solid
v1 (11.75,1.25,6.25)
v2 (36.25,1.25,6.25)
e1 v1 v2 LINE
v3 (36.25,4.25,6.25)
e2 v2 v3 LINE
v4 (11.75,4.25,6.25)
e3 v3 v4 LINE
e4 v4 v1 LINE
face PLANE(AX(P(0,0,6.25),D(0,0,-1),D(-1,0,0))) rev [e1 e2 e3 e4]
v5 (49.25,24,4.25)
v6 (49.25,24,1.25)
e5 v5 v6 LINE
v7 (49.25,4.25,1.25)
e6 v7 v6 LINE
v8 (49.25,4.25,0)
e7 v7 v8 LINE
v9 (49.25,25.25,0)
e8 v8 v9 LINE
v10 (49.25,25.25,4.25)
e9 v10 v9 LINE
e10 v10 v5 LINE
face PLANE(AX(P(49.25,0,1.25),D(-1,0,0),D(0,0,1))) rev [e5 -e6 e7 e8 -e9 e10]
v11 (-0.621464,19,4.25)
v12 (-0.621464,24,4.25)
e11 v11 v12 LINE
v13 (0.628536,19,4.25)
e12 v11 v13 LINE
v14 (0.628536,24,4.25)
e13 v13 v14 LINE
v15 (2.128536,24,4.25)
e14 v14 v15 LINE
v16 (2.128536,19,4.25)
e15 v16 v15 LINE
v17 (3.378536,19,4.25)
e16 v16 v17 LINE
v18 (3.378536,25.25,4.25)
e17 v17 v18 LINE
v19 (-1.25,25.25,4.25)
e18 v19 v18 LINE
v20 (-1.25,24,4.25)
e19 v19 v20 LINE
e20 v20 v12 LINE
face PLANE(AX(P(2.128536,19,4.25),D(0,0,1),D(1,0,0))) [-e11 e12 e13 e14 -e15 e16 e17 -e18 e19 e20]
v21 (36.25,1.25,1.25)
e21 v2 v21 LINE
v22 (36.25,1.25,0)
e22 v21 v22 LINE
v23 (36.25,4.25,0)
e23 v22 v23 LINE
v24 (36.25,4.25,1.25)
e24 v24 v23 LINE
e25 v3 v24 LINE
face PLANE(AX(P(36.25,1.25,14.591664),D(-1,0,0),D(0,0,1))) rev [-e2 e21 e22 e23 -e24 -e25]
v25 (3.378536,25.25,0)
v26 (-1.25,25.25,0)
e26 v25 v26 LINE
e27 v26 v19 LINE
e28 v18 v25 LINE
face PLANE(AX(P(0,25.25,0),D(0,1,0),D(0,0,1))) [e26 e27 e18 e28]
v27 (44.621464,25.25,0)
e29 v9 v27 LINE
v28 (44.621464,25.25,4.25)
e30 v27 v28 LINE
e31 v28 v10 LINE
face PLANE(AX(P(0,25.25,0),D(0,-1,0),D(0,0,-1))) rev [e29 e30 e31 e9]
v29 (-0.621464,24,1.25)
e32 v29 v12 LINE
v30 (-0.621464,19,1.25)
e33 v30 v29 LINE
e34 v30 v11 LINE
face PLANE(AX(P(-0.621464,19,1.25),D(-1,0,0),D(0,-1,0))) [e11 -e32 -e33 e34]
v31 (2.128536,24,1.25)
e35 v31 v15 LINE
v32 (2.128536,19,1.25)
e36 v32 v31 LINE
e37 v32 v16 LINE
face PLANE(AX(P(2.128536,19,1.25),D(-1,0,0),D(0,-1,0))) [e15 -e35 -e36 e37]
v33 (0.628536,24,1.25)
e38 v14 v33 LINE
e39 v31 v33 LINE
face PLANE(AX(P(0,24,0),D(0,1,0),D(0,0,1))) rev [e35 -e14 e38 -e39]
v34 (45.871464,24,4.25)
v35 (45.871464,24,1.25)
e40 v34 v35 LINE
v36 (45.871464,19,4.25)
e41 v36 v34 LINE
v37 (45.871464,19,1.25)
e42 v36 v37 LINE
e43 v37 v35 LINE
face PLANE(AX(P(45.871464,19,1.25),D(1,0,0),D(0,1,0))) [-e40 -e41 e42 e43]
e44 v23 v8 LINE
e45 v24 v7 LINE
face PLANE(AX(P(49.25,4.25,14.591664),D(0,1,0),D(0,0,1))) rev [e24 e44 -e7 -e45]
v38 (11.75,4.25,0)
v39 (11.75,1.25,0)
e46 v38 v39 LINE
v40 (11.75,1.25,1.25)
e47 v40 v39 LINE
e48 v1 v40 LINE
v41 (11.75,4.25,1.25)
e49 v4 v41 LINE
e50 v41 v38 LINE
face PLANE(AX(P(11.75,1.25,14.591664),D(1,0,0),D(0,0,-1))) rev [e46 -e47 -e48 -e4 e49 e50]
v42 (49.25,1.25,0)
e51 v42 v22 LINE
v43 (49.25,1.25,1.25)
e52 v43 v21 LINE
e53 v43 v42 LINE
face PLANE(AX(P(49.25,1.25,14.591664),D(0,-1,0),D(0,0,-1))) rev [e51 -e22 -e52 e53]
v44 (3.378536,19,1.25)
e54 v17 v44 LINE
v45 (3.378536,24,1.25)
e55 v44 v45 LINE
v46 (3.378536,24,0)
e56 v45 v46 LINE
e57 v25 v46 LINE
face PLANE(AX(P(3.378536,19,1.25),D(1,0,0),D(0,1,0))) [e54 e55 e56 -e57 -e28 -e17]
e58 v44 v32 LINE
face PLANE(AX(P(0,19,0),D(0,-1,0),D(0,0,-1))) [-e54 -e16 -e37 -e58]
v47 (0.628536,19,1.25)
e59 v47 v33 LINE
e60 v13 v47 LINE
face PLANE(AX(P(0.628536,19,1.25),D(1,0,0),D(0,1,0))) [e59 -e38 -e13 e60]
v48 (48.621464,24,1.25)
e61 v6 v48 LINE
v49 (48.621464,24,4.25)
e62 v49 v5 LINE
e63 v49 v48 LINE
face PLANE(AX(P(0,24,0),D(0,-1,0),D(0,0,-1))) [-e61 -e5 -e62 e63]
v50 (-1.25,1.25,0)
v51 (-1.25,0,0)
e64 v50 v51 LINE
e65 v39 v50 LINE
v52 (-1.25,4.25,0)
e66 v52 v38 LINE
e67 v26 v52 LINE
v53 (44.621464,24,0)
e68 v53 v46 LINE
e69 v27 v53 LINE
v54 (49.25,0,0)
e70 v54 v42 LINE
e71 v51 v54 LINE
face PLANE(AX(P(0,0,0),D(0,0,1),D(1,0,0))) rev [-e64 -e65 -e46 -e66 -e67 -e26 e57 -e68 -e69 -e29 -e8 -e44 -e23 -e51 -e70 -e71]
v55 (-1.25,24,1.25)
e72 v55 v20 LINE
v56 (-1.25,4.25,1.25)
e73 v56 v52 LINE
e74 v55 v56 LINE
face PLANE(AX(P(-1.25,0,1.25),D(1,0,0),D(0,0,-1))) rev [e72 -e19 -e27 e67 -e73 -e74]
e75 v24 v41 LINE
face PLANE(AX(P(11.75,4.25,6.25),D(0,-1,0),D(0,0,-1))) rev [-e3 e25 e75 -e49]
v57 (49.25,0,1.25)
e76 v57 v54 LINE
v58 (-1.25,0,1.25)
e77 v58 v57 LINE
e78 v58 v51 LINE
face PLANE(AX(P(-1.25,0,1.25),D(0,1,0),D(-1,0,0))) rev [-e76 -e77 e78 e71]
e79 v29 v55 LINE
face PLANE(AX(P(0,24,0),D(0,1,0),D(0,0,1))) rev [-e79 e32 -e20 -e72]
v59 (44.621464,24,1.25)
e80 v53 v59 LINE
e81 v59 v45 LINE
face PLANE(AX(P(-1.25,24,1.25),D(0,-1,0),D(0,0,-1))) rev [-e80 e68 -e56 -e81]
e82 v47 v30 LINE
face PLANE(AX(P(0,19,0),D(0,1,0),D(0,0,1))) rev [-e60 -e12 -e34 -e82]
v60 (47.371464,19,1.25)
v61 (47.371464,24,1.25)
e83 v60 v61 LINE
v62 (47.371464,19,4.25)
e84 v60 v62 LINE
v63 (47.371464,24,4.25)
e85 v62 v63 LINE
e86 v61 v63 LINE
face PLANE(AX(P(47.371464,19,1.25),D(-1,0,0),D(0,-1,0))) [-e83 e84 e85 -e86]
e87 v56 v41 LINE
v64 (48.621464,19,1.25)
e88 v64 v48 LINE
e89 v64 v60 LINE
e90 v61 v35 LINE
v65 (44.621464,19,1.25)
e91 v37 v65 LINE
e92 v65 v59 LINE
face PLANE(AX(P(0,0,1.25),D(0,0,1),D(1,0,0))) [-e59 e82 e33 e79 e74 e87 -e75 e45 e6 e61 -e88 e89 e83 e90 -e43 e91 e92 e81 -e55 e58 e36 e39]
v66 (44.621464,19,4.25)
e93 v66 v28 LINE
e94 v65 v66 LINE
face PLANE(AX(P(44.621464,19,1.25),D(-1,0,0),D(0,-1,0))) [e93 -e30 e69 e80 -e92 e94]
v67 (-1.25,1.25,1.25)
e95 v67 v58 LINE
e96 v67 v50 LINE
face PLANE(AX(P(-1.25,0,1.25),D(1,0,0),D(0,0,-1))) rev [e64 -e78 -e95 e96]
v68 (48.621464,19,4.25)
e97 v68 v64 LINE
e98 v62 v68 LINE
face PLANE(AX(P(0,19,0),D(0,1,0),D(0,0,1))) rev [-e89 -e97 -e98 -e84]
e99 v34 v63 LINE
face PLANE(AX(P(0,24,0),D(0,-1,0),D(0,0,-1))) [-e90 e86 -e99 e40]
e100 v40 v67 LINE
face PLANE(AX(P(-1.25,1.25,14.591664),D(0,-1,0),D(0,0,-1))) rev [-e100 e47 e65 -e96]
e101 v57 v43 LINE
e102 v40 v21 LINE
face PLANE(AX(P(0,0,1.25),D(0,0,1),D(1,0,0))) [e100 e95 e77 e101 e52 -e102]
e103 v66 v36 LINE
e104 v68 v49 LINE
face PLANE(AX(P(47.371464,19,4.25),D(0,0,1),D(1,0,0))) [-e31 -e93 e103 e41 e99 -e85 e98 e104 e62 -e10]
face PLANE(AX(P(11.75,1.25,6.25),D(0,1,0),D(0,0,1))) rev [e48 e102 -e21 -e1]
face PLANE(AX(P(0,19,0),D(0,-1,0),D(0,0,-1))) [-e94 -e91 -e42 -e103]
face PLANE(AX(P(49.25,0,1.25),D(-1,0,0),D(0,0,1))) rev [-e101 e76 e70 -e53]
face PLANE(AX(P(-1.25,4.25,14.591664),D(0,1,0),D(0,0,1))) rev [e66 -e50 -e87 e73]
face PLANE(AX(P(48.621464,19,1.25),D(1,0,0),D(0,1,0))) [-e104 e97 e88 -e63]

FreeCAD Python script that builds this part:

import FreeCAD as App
import Part
import Sketcher
from FreeCAD import Vector


def add_polygon(sketch, points):
    """Adds a closed chain of lines whose ends are joined by coincident constraints."""
    first, n = sketch.GeometryCount, len(points)
    for a, b in zip(points, points[1:] + points[:1]):
        sketch.addGeometry(Part.LineSegment(App.Vector(*a, 0), App.Vector(*b, 0)), False)
    for i in range(n):
        sketch.addConstraint(Sketcher.Constraint("Coincident", first + i, 2, first + (i + 1) % n, 1))

doc = App.newDocument("Part")
body = doc.addObject("PartDesign::Body", "Body")

# Sketch on XY plane
sketch1 = body.newObject("Sketcher::SketchObject", "Sketch")
sketch1.AttachmentSupport = (doc.getObject("XY_Plane"), [""])
sketch1.MapMode = "FlatFace"
add_polygon(sketch1, [(-1.25, 24), (-1.25, 0), (49.25, 0), (49.25, 24)])  # lines 0-3
sketch1.addConstraint([
    Sketcher.Constraint("Vertical", 0),
    Sketcher.Constraint("Horizontal", 1),
    Sketcher.Constraint("Vertical", 2),
    Sketcher.Constraint("Horizontal", 3),
    Sketcher.Constraint("PointOnObject", 0, 2, -1),
    Sketcher.Constraint("DistanceY", 0, 2, 0, 1, 24.0),
    Sketcher.Constraint("DistanceX", 1, 1, 1, 2, 50.5),
    Sketcher.Constraint("DistanceX", 0, 2, -1, 1, 1.25),
])
pad1 = body.newObject("PartDesign::Pad", "Pad")
pad1.Profile = sketch1
pad1.Length = 1.25

# Sketch on XZ plane
sketch2 = body.newObject("Sketcher::SketchObject", "Sketch001")
sketch2.AttachmentSupport = (doc.getObject("XZ_Plane"), [""])
sketch2.MapMode = "FlatFace"
sketch2.AttachmentOffset = App.Placement(Vector(0, 0, -24), App.Rotation())
add_polygon(sketch2, [(47.371464, 1.25), (47.371464, 4.25), (48.621464, 4.25), (48.621464, 1.25)])  # lines 0-3
add_polygon(sketch2, [(44.621464, 1.25), (44.621464, 4.25), (45.871464, 4.25), (45.871464, 1.25)])  # lines 4-7
add_polygon(sketch2, [(2.128536, 1.25), (2.128536, 4.25), (3.378536, 4.25), (3.378536, 1.25)])  # lines 8-11
add_polygon(sketch2, [(-0.621464, 1.25), (-0.621464, 4.25), (0.628536, 4.25), (0.628536, 1.25)])  # lines 12-15
sketch2.addConstraint([
    Sketcher.Constraint("Vertical", 0),
    Sketcher.Constraint("Horizontal", 1),
    Sketcher.Constraint("Vertical", 2),
    Sketcher.Constraint("Horizontal", 3),
    Sketcher.Constraint("Vertical", 4),
    Sketcher.Constraint("Horizontal", 5),
    Sketcher.Constraint("Vertical", 6),
    Sketcher.Constraint("Horizontal", 7),
    Sketcher.Constraint("Vertical", 8),
    Sketcher.Constraint("Horizontal", 9),
    Sketcher.Constraint("Vertical", 10),
    Sketcher.Constraint("Horizontal", 11),
    Sketcher.Constraint("Vertical", 12),
    Sketcher.Constraint("Horizontal", 13),
    Sketcher.Constraint("Vertical", 14),
    Sketcher.Constraint("Horizontal", 15),
    Sketcher.Constraint("Horizontal", 1, 2, 4, 2),
    Sketcher.Constraint("Horizontal", 3, 2, 6, 2),
    Sketcher.Constraint("Horizontal", 5, 2, 8, 2),
    Sketcher.Constraint("Horizontal", 7, 2, 10, 2),
    Sketcher.Constraint("Horizontal", 9, 2, 12, 2),
    Sketcher.Constraint("Horizontal", 11, 2, 14, 2),
    Sketcher.Constraint("Equal", 3, 5),
    Sketcher.Constraint("Equal", 7, 9),
    Sketcher.Constraint("Equal", 11, 13),
    Sketcher.Constraint("DistanceY", 0, 1, 0, 2, 3.0),
    Sketcher.Constraint("DistanceX", 4, 2, 1, 2, 4.0),
    Sketcher.Constraint("DistanceX", 12, 2, 9, 2, 4.0),
    Sketcher.Constraint("DistanceX", 1, 1, 1, 2, 1.25),
    Sketcher.Constraint("DistanceY", -1, 1, 0, 2, 4.25),
    Sketcher.Constraint("DistanceX", -1, 1, 0, 2, 47.371464),
    Sketcher.Constraint("DistanceX", -1, 1, 8, 2, 2.128536),
])
pad2 = body.newObject("PartDesign::Pad", "Pad001")
pad2.Profile = sketch2
pad2.Length = 5

# Sketch on XY plane
sketch3 = body.newObject("Sketcher::SketchObject", "Sketch002")
sketch3.AttachmentSupport = (doc.getObject("XY_Plane"), [""])
sketch3.MapMode = "FlatFace"
add_polygon(sketch3, [(49.25, 4.25), (49.25, 1.25), (36.25, 1.25), (36.25, 4.25)])  # lines 0-3
add_polygon(sketch3, [(11.75, 4.25), (11.75, 1.25), (-1.25, 1.25), (-1.25, 4.25)])  # lines 4-7
sketch3.addConstraint([
    Sketcher.Constraint("Vertical", 0),
    Sketcher.Constraint("Horizontal", 1),
    Sketcher.Constraint("Vertical", 2),
    Sketcher.Constraint("Horizontal", 3),
    Sketcher.Constraint("Vertical", 4),
    Sketcher.Constraint("Horizontal", 5),
    Sketcher.Constraint("Vertical", 6),
    Sketcher.Constraint("Horizontal", 7),
    Sketcher.Constraint("Horizontal", 1, 2, 4, 2),
    Sketcher.Constraint("Horizontal", 3, 2, 6, 2),
    Sketcher.Constraint("Equal", 3, 5),
    Sketcher.Constraint("DistanceX", 1, 2, 1, 1, 13.0),
    Sketcher.Constraint("DistanceY", 0, 2, 0, 1, 3.0),
    Sketcher.Constraint("DistanceX", 4, 2, 1, 2, 24.5),
    Sketcher.Constraint("DistanceX", -1, 1, 0, 2, 49.25),
    Sketcher.Constraint("DistanceY", -1, 1, 0, 2, 1.25),
])
pocket1 = body.newObject("PartDesign::Pocket", "Pocket")
pocket1.Profile = sketch3
pocket1.Length = 1.25
pocket1.Reversed = True

# Sketch on XZ plane
sketch4 = body.newObject("Sketcher::SketchObject", "Sketch003")
sketch4.AttachmentSupport = (doc.getObject("XZ_Plane"), [""])
sketch4.MapMode = "FlatFace"
sketch4.AttachmentOffset = App.Placement(Vector(0, 0, -24), App.Rotation())
add_polygon(sketch4, [(-1.25, 0), (-1.25, 4.25), (3.378536, 4.25), (3.378536, 0)])  # lines 0-3
add_polygon(sketch4, [(44.621464, 0), (44.621464, 4.25), (49.25, 4.25), (49.25, 0)])  # lines 4-7
sketch4.addConstraint([
    Sketcher.Constraint("Vertical", 0),
    Sketcher.Constraint("Horizontal", 1),
    Sketcher.Constraint("Vertical", 2),
    Sketcher.Constraint("Horizontal", 3),
    Sketcher.Constraint("Vertical", 4),
    Sketcher.Constraint("Horizontal", 5),
    Sketcher.Constraint("Vertical", 6),
    Sketcher.Constraint("Horizontal", 7),
    Sketcher.Constraint("PointOnObject", 2, 2, -1),
    Sketcher.Constraint("PointOnObject", 6, 2, -1),
    Sketcher.Constraint("Horizontal", 1, 2, 4, 2),
    Sketcher.Constraint("Equal", 3, 5),
    Sketcher.Constraint("DistanceY", 0, 1, 0, 2, 4.25),
    Sketcher.Constraint("DistanceX", 0, 2, 5, 2, 50.5),
    Sketcher.Constraint("DistanceX", 0, 2, -1, 1, 1.25),
    Sketcher.Constraint("DistanceX", 1, 1, 1, 2, 4.628536),
])
pad3 = body.newObject("PartDesign::Pad", "Pad002")
pad3.Profile = sketch4
pad3.Length = 1.25
pad3.Reversed = True

# Sketch on XY plane
sketch5 = body.newObject("Sketcher::SketchObject", "Sketch004")
sketch5.AttachmentSupport = (doc.getObject("XY_Plane"), [""])
sketch5.MapMode = "FlatFace"
sketch5.AttachmentOffset = App.Placement(Vector(0, 0, 1.25), App.Rotation())
add_polygon(sketch5, [(11.75, 4.25), (11.75, 1.25), (36.25, 1.25), (36.25, 4.25)])  # lines 0-3
sketch5.addConstraint([
    Sketcher.Constraint("Vertical", 0),
    Sketcher.Constraint("Horizontal", 1),
    Sketcher.Constraint("Vertical", 2),
    Sketcher.Constraint("Horizontal", 3),
    Sketcher.Constraint("DistanceY", 0, 2, 0, 1, 3.0),
    Sketcher.Constraint("DistanceX", 1, 1, 1, 2, 24.5),
    Sketcher.Constraint("DistanceX", -1, 1, 0, 2, 11.75),
    Sketcher.Constraint("DistanceY", -1, 1, 0, 2, 1.25),
])
pad4 = body.newObject("PartDesign::Pad", "Pad003")
pad4.Profile = sketch5
pad4.Length = 5

doc.recompute()
